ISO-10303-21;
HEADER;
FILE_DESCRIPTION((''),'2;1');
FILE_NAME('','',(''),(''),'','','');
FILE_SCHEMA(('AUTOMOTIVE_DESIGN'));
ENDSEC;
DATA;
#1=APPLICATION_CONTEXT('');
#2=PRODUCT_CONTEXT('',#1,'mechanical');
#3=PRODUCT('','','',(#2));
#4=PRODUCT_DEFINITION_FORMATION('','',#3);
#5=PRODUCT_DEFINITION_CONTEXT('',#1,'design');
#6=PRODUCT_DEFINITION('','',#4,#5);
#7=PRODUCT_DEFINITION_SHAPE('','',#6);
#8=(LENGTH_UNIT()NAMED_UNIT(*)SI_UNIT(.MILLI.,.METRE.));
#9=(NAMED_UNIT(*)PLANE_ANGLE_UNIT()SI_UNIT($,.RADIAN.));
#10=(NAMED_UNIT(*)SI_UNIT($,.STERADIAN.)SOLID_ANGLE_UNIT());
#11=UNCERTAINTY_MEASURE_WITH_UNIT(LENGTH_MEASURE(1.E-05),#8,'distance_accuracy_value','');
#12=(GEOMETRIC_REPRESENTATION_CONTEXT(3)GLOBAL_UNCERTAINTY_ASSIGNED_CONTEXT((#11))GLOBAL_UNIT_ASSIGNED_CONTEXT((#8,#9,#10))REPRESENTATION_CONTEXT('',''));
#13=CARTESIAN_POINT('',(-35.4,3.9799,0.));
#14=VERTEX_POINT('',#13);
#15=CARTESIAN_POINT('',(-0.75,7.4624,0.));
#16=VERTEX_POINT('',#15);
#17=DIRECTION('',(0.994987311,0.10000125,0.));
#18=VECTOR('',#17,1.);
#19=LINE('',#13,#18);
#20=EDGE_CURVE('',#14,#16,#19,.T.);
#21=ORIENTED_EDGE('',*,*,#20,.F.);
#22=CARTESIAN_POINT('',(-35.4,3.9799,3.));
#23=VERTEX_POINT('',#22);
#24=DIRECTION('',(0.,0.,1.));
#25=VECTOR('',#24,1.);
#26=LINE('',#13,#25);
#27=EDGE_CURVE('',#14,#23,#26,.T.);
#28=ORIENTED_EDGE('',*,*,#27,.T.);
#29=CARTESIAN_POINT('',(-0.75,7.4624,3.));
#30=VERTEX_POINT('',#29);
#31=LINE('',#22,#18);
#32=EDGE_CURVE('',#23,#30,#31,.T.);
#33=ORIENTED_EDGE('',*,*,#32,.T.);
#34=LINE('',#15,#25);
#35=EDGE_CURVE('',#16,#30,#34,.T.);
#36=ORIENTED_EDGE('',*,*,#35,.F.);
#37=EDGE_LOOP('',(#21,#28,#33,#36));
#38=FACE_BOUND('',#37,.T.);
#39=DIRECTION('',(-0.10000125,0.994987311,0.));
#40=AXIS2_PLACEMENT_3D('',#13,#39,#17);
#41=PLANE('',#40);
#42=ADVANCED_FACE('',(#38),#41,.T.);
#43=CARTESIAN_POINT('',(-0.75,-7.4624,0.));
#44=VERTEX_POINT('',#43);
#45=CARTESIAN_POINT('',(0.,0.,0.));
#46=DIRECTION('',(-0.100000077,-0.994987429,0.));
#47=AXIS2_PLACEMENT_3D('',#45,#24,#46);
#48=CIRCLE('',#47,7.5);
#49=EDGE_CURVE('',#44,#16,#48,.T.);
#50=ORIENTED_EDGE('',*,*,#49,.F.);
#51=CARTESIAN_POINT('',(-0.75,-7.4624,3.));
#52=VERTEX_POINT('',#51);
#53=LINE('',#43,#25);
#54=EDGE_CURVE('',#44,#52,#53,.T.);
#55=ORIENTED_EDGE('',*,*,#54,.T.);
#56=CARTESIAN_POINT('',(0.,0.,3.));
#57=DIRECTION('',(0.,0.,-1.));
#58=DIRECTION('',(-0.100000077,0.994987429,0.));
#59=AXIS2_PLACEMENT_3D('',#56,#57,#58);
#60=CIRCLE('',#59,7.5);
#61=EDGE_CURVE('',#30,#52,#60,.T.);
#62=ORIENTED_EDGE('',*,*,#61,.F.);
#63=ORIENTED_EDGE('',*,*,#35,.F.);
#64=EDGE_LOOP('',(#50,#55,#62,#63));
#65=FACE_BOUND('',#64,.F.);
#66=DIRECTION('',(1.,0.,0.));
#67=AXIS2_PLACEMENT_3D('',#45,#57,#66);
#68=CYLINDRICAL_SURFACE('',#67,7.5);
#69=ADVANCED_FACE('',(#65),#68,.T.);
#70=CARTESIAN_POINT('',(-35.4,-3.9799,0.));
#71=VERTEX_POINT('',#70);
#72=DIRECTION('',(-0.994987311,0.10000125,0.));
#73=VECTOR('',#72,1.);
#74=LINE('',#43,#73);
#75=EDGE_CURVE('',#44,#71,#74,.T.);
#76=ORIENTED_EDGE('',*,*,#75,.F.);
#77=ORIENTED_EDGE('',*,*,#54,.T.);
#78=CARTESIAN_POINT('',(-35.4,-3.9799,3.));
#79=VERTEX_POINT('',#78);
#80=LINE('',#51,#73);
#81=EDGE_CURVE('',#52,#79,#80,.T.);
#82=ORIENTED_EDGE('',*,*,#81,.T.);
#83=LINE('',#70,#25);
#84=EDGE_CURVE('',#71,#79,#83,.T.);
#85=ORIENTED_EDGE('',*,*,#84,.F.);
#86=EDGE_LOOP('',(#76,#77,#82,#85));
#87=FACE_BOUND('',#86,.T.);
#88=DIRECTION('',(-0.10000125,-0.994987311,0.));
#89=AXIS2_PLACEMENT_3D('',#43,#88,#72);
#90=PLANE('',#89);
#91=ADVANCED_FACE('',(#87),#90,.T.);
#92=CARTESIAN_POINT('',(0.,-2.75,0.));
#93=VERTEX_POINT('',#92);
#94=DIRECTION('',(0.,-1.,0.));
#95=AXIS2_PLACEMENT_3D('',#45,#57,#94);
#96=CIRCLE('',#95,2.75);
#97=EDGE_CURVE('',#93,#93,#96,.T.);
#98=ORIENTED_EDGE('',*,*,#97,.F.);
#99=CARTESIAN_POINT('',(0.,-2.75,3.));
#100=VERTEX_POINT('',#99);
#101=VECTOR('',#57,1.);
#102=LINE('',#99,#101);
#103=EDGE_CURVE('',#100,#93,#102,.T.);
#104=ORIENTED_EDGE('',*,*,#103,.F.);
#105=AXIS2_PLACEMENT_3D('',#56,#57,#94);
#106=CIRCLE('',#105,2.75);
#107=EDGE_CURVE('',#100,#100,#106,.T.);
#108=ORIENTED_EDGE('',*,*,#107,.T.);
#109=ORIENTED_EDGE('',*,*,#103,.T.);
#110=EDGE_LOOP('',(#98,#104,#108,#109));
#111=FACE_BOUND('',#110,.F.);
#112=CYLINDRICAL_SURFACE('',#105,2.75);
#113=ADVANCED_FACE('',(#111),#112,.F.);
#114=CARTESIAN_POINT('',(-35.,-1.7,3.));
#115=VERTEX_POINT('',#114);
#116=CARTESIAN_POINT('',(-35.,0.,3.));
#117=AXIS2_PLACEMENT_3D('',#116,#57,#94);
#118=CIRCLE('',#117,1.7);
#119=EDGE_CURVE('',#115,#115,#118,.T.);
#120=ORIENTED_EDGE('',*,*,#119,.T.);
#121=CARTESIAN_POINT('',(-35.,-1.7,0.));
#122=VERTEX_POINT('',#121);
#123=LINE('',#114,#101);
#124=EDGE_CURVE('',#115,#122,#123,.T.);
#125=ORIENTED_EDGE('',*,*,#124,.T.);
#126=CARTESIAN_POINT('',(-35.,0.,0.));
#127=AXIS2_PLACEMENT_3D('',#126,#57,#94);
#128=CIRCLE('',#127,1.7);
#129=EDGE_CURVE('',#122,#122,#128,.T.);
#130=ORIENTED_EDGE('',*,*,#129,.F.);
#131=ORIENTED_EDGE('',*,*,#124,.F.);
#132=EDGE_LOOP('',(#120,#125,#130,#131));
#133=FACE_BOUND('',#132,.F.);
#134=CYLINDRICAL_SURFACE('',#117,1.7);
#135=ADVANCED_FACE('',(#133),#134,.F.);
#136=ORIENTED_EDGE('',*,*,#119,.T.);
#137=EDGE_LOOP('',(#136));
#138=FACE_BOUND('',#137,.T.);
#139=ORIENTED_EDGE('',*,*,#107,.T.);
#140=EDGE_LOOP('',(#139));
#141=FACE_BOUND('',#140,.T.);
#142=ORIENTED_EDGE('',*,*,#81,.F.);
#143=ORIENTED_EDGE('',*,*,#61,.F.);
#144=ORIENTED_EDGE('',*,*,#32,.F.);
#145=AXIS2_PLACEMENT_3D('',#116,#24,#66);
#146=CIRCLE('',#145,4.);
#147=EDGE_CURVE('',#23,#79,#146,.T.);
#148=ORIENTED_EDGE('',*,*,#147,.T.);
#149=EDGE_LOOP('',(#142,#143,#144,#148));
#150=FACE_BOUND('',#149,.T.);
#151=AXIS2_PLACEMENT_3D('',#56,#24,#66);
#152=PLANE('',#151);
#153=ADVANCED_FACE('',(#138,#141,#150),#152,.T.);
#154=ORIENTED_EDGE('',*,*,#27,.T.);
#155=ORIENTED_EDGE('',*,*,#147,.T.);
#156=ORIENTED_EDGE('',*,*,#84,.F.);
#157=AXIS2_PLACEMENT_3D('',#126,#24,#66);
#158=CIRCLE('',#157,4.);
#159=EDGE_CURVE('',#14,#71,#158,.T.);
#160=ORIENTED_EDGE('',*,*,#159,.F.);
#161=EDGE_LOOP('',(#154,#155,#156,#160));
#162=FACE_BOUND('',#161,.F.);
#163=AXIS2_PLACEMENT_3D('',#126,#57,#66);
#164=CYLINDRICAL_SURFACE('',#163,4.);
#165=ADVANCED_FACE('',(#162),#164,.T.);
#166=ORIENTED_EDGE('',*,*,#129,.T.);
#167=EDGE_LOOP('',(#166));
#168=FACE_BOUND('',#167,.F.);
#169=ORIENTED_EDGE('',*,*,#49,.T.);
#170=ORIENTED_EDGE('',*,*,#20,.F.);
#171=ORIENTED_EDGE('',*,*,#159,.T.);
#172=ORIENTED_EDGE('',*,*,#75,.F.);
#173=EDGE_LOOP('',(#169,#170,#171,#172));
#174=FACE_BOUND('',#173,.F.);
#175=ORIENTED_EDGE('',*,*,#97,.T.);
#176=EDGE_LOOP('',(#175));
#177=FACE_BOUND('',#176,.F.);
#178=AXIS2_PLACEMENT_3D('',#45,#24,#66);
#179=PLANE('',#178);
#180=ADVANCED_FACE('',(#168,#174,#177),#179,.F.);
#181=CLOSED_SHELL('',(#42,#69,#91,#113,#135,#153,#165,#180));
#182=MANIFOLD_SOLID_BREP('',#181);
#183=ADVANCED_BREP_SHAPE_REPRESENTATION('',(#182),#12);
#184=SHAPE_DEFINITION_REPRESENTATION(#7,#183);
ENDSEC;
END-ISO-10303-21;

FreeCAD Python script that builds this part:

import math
import FreeCAD as App
import Part
import Sketcher
Q = App.Units.Quantity

doc = App.newDocument("Part")
body = doc.addObject("PartDesign::Body", "Body")

sketch1 = body.newObject("Sketcher::SketchObject", "Sketch")
sketch1.AttachmentSupport = (doc.getObject("XY_Plane"), [""])
sketch1.MapMode = "FlatFace"
sketch1.addGeometry([
    Part.ArcOfCircle(Part.Circle(App.Vector(0, 0, 0), App.Vector(0, 0, 1), 7.5), math.radians(-95.739175), math.radians(95.739175)),
    Part.LineSegment(App.Vector(-0.75, 7.4624, 0), App.Vector(-35.4, 3.9799, 0)),
    Part.ArcOfCircle(Part.Circle(App.Vector(-35, 0, 0), App.Vector(0, 0, 1), 4), math.radians(95.739242), math.radians(264.260758)),
    Part.LineSegment(App.Vector(-35.4, -3.9799, 0), App.Vector(-0.75, -7.4624, 0)),
], False)
sketch1.addConstraint([
    Sketcher.Constraint("Tangent", 0, 2, 1, 1),
    Sketcher.Constraint("Tangent", 1, 2, 2, 1),
    Sketcher.Constraint("Tangent", 2, 2, 3, 1),
    Sketcher.Constraint("Tangent", 3, 2, 0, 1),
    Sketcher.Constraint("Coincident", 0, 3, -1, 1),
    Sketcher.Constraint("PointOnObject", 2, 3, -1),
    Sketcher.Constraint("Radius", 2, Q("4 mm")),
    Sketcher.Constraint("Radius", 0, Q("7.5 mm")),
    Sketcher.Constraint("DistanceX", 2, 3, -1, 1, Q("35 mm")),
])
pad1 = body.newObject("PartDesign::Pad", "Pad")
pad1.Profile = sketch1
pad1.Length = 3

sketch2 = body.newObject("Sketcher::SketchObject", "Sketch001")
sketch2.AttachmentSupport = (doc.getObject("XY_Plane"), [""])
sketch2.MapMode = "FlatFace"
sketch2.AttachmentOffset = App.Placement(App.Vector(0, 0, 3), App.Rotation())
sketch2.addGeometry(Part.Circle(App.Vector(0, 0, 0), App.Vector(0, 0, 1), 2.75), False)
sketch2.addConstraint([
    Sketcher.Constraint("Coincident", 0, 3, -1, 1),
    Sketcher.Constraint("Diameter", 0, Q("5.5 mm")),
])
doc.recompute()
hole = body.newObject("PartDesign::Hole", "Hole")
hole.Profile = sketch2
hole.ThreadType = "None"
hole.Diameter = 5.5
hole.DepthType = "ThroughAll"

sketch3 = body.newObject("Sketcher::SketchObject", "Sketch002")
sketch3.AttachmentSupport = (doc.getObject("XY_Plane"), [""])
sketch3.MapMode = "FlatFace"
sketch3.AttachmentOffset = App.Placement(App.Vector(0, 0, 3), App.Rotation())
sketch3.addGeometry(Part.Circle(App.Vector(-35, 0, 0), App.Vector(0, 0, 1), 1.7), False)
sketch3.addConstraint([
    Sketcher.Constraint("PointOnObject", 0, 3, -1),
    Sketcher.Constraint("Diameter", 0, Q("3.4 mm")),
    Sketcher.Constraint("DistanceX", 0, 3, -1, 1, Q("35 mm")),
])
doc.recompute()
hole2 = body.newObject("PartDesign::Hole", "Hole001")
hole2.Profile = sketch3
hole2.ThreadType = "None"
hole2.Diameter = 3.4
hole2.DepthType = "ThroughAll"

doc.recompute()
